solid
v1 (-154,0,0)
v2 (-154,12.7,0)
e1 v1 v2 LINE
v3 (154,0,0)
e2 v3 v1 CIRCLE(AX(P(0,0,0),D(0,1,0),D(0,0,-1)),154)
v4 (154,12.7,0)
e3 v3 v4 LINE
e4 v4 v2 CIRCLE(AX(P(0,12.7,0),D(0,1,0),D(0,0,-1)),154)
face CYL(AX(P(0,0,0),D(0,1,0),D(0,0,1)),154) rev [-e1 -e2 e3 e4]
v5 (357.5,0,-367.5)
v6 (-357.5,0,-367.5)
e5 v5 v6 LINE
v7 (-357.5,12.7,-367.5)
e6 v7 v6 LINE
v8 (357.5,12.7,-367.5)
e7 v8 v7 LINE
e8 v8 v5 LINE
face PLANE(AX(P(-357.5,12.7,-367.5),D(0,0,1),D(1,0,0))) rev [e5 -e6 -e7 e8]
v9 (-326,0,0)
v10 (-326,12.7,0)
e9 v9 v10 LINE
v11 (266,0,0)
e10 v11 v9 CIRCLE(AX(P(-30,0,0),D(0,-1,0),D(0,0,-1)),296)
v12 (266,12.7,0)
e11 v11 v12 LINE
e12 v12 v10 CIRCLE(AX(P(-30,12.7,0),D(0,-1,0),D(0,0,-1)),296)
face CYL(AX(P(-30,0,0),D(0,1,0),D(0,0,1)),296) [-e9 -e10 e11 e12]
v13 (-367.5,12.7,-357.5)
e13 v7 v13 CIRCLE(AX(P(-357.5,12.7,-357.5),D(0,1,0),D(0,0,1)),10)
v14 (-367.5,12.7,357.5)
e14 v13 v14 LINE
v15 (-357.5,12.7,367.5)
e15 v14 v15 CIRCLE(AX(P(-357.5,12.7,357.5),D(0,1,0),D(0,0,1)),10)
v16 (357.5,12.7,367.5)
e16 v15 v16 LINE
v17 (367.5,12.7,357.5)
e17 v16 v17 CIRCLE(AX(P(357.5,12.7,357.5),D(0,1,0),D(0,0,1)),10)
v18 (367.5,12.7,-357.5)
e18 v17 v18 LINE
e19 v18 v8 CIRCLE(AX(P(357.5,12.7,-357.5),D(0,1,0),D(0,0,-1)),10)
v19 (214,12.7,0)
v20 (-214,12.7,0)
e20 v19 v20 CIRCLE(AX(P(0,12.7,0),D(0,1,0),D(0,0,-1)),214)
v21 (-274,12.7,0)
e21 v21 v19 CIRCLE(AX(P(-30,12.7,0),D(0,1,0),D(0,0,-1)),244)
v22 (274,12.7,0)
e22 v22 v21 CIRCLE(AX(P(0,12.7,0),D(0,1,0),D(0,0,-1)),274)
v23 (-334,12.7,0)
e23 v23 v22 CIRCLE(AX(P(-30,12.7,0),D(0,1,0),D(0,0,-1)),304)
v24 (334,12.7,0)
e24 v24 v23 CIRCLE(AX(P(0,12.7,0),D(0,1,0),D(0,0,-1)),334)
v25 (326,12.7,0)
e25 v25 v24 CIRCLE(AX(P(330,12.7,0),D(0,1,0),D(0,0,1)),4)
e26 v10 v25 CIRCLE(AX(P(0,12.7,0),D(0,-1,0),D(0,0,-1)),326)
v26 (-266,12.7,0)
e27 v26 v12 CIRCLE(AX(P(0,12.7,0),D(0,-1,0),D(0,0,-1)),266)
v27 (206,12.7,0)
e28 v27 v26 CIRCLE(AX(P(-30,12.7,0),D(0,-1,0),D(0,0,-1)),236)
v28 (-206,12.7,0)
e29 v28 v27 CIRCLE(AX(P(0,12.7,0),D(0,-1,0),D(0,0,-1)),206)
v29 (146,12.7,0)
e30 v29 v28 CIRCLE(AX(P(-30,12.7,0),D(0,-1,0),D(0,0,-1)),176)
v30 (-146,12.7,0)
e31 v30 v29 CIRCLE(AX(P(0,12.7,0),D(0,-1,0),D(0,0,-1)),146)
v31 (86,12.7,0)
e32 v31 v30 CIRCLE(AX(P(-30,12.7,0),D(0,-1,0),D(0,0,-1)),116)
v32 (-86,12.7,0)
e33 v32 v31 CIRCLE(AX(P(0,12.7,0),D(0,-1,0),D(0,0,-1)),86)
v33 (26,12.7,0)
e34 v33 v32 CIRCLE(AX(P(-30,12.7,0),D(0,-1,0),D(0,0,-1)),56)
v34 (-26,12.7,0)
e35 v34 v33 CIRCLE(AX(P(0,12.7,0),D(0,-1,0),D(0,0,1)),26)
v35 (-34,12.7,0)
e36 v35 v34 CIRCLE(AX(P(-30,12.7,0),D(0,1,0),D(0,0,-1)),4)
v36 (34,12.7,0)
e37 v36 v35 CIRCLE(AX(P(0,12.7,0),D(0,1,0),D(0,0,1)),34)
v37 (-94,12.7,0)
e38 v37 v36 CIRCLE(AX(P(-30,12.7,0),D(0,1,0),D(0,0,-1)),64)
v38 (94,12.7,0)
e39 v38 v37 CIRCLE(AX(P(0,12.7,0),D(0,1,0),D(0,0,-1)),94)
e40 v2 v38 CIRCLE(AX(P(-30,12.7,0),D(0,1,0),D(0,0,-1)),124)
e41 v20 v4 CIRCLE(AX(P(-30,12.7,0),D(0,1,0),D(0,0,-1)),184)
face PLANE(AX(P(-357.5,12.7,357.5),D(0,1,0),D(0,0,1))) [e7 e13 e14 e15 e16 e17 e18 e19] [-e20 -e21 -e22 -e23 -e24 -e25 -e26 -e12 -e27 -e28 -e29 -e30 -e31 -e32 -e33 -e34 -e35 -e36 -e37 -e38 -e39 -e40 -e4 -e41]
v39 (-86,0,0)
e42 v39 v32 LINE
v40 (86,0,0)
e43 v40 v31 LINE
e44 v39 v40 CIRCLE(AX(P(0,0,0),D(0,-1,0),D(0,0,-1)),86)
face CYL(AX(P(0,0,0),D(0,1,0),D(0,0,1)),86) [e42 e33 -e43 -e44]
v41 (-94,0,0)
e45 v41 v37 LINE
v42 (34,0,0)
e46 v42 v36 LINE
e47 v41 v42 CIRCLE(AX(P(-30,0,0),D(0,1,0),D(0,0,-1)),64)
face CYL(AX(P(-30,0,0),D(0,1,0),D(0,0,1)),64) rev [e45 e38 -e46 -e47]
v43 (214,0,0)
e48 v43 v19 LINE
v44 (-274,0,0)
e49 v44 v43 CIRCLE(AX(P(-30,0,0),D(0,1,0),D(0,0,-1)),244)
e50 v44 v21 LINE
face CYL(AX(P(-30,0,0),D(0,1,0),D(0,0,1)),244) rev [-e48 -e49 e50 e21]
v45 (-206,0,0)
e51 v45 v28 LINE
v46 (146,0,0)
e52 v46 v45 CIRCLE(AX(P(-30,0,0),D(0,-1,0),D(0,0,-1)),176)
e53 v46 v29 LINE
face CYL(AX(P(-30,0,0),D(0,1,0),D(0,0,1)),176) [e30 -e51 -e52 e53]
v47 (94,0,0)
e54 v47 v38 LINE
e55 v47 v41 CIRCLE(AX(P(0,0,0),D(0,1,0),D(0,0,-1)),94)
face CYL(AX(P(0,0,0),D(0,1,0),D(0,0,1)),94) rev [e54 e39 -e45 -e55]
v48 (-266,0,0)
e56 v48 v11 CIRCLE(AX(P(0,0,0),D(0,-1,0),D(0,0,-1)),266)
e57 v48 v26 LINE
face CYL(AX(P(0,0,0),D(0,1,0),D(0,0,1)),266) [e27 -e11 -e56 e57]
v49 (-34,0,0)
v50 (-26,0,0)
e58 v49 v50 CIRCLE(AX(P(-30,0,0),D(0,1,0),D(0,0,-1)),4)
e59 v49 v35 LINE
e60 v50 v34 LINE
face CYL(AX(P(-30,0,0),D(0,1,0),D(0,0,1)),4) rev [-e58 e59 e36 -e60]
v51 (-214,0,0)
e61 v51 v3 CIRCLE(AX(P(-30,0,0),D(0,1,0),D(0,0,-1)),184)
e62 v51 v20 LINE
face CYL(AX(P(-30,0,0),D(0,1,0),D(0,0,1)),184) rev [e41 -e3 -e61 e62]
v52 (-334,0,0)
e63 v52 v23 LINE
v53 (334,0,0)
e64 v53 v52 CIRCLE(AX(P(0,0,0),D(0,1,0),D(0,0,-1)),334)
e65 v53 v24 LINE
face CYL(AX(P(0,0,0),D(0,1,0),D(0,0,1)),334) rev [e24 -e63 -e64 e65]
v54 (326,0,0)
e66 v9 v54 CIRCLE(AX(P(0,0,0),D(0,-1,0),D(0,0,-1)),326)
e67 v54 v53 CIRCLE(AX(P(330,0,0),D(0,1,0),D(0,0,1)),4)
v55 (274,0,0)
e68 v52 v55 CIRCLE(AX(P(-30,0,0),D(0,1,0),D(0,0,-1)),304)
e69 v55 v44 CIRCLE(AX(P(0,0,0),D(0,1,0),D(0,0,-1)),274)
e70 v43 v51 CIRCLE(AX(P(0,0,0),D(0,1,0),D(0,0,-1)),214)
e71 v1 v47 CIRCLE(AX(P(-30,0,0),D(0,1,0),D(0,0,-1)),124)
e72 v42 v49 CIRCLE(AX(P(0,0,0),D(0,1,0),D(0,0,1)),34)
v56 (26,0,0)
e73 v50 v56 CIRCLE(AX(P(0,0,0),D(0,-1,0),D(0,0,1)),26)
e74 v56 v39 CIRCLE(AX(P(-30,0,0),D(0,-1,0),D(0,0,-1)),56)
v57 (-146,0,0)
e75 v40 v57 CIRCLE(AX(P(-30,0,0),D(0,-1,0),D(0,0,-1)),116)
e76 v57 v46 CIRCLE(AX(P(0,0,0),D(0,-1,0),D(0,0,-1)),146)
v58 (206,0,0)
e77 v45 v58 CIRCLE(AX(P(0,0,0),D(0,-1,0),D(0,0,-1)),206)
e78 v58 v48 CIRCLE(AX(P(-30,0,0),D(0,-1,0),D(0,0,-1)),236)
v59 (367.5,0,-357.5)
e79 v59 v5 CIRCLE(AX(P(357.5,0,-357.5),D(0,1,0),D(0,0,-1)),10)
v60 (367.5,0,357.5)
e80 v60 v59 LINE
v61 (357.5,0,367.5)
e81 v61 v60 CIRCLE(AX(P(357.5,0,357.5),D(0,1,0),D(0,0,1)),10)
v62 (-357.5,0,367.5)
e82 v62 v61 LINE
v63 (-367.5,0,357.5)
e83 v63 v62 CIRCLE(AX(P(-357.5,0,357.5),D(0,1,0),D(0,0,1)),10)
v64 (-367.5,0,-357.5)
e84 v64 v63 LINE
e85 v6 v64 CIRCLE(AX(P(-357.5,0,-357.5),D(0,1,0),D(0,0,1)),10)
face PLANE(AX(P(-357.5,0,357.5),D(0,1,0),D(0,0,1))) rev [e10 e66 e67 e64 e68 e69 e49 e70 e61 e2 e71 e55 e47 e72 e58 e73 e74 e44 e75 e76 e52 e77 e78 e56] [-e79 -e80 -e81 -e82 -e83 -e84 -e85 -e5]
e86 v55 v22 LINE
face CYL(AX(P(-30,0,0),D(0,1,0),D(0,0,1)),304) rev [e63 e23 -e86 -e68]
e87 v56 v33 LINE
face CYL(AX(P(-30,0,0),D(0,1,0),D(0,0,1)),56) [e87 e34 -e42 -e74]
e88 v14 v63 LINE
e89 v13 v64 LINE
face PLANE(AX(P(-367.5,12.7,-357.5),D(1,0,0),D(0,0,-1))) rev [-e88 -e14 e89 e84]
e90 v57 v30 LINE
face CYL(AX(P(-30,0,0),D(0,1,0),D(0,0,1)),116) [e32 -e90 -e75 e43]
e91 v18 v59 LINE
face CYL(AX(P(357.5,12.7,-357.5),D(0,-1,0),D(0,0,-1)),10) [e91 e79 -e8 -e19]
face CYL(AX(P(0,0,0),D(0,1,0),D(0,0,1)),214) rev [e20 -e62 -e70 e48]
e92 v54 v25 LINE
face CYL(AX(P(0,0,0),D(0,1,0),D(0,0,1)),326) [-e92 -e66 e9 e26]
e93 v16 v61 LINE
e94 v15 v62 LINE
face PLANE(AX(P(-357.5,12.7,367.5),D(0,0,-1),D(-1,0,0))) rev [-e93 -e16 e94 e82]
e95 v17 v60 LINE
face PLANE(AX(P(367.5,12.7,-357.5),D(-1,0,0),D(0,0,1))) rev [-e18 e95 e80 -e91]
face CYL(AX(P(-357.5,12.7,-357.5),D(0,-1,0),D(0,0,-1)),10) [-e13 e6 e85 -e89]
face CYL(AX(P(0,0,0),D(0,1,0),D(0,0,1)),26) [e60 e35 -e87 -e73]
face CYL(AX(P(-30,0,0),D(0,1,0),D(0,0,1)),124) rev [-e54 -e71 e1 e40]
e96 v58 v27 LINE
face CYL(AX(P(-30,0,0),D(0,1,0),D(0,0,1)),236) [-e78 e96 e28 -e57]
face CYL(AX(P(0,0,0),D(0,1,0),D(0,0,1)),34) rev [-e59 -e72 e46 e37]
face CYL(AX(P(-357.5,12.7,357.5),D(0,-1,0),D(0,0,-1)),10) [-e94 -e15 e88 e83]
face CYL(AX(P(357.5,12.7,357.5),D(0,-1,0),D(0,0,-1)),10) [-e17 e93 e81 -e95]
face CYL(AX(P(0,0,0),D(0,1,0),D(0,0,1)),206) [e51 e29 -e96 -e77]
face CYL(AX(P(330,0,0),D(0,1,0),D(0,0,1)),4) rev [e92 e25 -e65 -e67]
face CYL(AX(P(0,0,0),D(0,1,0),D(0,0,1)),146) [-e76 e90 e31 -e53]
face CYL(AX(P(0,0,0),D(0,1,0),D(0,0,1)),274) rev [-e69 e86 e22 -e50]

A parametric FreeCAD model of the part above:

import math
import FreeCAD as App
import Part
import Sketcher
from FreeCAD import Vector
Q = App.Units.Quantity

doc = App.newDocument("Part")
body = doc.addObject("PartDesign::Body", "Body")

# Sketch on XZ plane
sketch1 = body.newObject("Sketcher::SketchObject", "Sketch")
sketch1.AttachmentSupport = (doc.getObject("XZ_Plane"), [""])
sketch1.MapMode = "FlatFace"
sketch1.addGeometry([
    Part.LineSegment(Vector(357.5, -367.5, 0), Vector(-357.5, -367.5, 0)),  # 0
    Part.ArcOfCircle(Part.Circle(Vector(-357.5, -357.5, 0), Vector(0, 0, 1), 10), math.radians(180), math.radians(270)),  # 1
    Part.LineSegment(Vector(-367.5, -357.5, 0), Vector(-367.5, 357.5, 0)),  # 2
    Part.ArcOfCircle(Part.Circle(Vector(-357.5, 357.5, 0), Vector(0, 0, 1), 10), math.radians(90), math.radians(180)),  # 3
    Part.LineSegment(Vector(-357.5, 367.5, 0), Vector(357.5, 367.5, 0)),  # 4
    Part.ArcOfCircle(Part.Circle(Vector(357.5, 357.5, 0), Vector(0, 0, 1), 10), math.radians(0), math.radians(90)),  # 5
    Part.LineSegment(Vector(367.5, 357.5, 0), Vector(367.5, -357.5, 0)),  # 6
    Part.ArcOfCircle(Part.Circle(Vector(357.5, -357.5, 0), Vector(0, 0, 1), 10), math.radians(-90), math.radians(0)),  # 7
], False)
sketch1.addConstraint([
    Sketcher.Constraint("Tangent", 0, 2, 1, 2),
    Sketcher.Constraint("Tangent", 1, 1, 2, 1),
    Sketcher.Constraint("Tangent", 2, 2, 3, 2),
    Sketcher.Constraint("Tangent", 3, 1, 4, 1),
    Sketcher.Constraint("Tangent", 4, 2, 5, 2),
    Sketcher.Constraint("Tangent", 5, 1, 6, 1),
    Sketcher.Constraint("Tangent", 6, 2, 7, 2),
    Sketcher.Constraint("Tangent", 7, 1, 0, 1),
    Sketcher.Constraint("Horizontal", 0),
    Sketcher.Constraint("Vertical", 2),
    Sketcher.Constraint("Horizontal", 4),
    Sketcher.Constraint("Vertical", 6),
    Sketcher.Constraint("Equal", 1, 3),
    Sketcher.Constraint("Equal", 3, 5),
    Sketcher.Constraint("Equal", 5, 7),
    Sketcher.Constraint("Symmetric", 1, 3, 5, 3, -1, 1),
    Sketcher.Constraint("Equal", 4, 2),
    Sketcher.Constraint("Radius", 1, Q("10 mm")),
    Sketcher.Constraint("DistanceX", 0, 2, 0, 1, Q("715 mm")),
])
pad1 = body.newObject("PartDesign::Pad", "Pad")
pad1.Profile = sketch1
pad1.Length = 12.7
pad1.Reversed = True

# Sketch on XZ plane
sketch2 = body.newObject("Sketcher::SketchObject", "Sketch001")
sketch2.AttachmentSupport = (doc.getObject("XZ_Plane"), [""])
sketch2.MapMode = "FlatFace"
sketch2.AttachmentOffset = App.Placement(Vector(0, 0, -12.7), App.Rotation())
sketch2.addGeometry([
    Part.ArcOfCircle(Part.Circle(Vector(0, 0, 0), Vector(0, 0, 1), 26), math.radians(180), math.radians(360)),  # 0
    Part.ArcOfCircle(Part.Circle(Vector(-30, 0, 0), Vector(0, 0, 1), 56), math.radians(0), math.radians(180)),  # 1
    Part.ArcOfCircle(Part.Circle(Vector(0, 0, 0), Vector(0, 0, 1), 86), math.radians(180), math.radians(360)),  # 2
    Part.ArcOfCircle(Part.Circle(Vector(-30, 0, 0), Vector(0, 0, 1), 116), math.radians(0), math.radians(180)),  # 3
    Part.ArcOfCircle(Part.Circle(Vector(0, 0, 0), Vector(0, 0, 1), 146), math.radians(180), math.radians(360)),  # 4
    Part.ArcOfCircle(Part.Circle(Vector(-30, 0, 0), Vector(0, 0, 1), 176), math.radians(0), math.radians(180)),  # 5
    Part.ArcOfCircle(Part.Circle(Vector(0, 0, 0), Vector(0, 0, 1), 206), math.radians(180), math.radians(360)),  # 6
    Part.ArcOfCircle(Part.Circle(Vector(-30, 0, 0), Vector(0, 0, 1), 236), math.radians(0), math.radians(180)),  # 7
    Part.ArcOfCircle(Part.Circle(Vector(0, 0, 0), Vector(0, 0, 1), 266), math.radians(180), math.radians(360)),  # 8
    Part.ArcOfCircle(Part.Circle(Vector(-30, 0, 0), Vector(0, 0, 1), 296), math.radians(0), math.radians(180)),  # 9
    Part.ArcOfCircle(Part.Circle(Vector(0, 0, 0), Vector(0, 0, 1), 326), math.radians(180), math.radians(360)),  # 10
    Part.ArcOfCircle(Part.Circle(Vector(330, 0, 0), Vector(0, 0, 1), 4), math.radians(0), math.radians(180)),  # 11
    Part.ArcOfCircle(Part.Circle(Vector(0, 0, 0), Vector(0, 0, 1), 334), math.radians(180), math.radians(360)),  # 12
    Part.ArcOfCircle(Part.Circle(Vector(-30, 0, 0), Vector(0, 0, 1), 304), math.radians(0), math.radians(180)),  # 13
    Part.ArcOfCircle(Part.Circle(Vector(0, 0, 0), Vector(0, 0, 1), 274), math.radians(180), math.radians(360)),  # 14
    Part.ArcOfCircle(Part.Circle(Vector(-30, 0, 0), Vector(0, 0, 1), 244), math.radians(0), math.radians(180)),  # 15
    Part.ArcOfCircle(Part.Circle(Vector(0, 0, 0), Vector(0, 0, 1), 214), math.radians(180), math.radians(360)),  # 16
    Part.ArcOfCircle(Part.Circle(Vector(-30, 0, 0), Vector(0, 0, 1), 184), math.radians(0), math.radians(180)),  # 17
    Part.ArcOfCircle(Part.Circle(Vector(0, 0, 0), Vector(0, 0, 1), 154), math.radians(180), math.radians(360)),  # 18
    Part.ArcOfCircle(Part.Circle(Vector(-30, 0, 0), Vector(0, 0, 1), 124), math.radians(0), math.radians(180)),  # 19
    Part.ArcOfCircle(Part.Circle(Vector(0, 0, 0), Vector(0, 0, 1), 94), math.radians(180), math.radians(360)),  # 20
    Part.ArcOfCircle(Part.Circle(Vector(-30, 0, 0), Vector(0, 0, 1), 64), math.radians(0), math.radians(180)),  # 21
    Part.ArcOfCircle(Part.Circle(Vector(0, 0, 0), Vector(0, 0, 1), 34), math.radians(180), math.radians(360)),  # 22
    Part.ArcOfCircle(Part.Circle(Vector(-30, 0, 0), Vector(0, 0, 1), 4), math.radians(0), math.radians(180)),  # 23
], False)
sketch2.addConstraint([
    Sketcher.Constraint("Tangent", 0, 2, 1, 1),
    Sketcher.Constraint("Tangent", 1, 2, 2, 1),
    Sketcher.Constraint("Tangent", 2, 2, 3, 1),
    Sketcher.Constraint("Tangent", 3, 2, 4, 1),
    Sketcher.Constraint("Tangent", 4, 2, 5, 1),
    Sketcher.Constraint("Tangent", 5, 2, 6, 1),
    Sketcher.Constraint("Tangent", 6, 2, 7, 1),
    Sketcher.Constraint("Tangent", 7, 2, 8, 1),
    Sketcher.Constraint("Tangent", 8, 2, 9, 1),
    Sketcher.Constraint("Tangent", 9, 2, 10, 1),
    Sketcher.Constraint("Tangent", 10, 2, 11, 2),
    Sketcher.Constraint("Tangent", 11, 1, 12, 2),
    Sketcher.Constraint("Tangent", 12, 1, 13, 2),
    Sketcher.Constraint("Tangent", 13, 1, 14, 2),
    Sketcher.Constraint("Tangent", 14, 1, 15, 2),
    Sketcher.Constraint("Tangent", 15, 1, 16, 2),
    Sketcher.Constraint("Tangent", 16, 1, 17, 2),
    Sketcher.Constraint("Tangent", 17, 1, 18, 2),
    Sketcher.Constraint("Tangent", 18, 1, 19, 2),
    Sketcher.Constraint("Tangent", 19, 1, 20, 2),
    Sketcher.Constraint("Tangent", 20, 1, 21, 2),
    Sketcher.Constraint("Tangent", 21, 1, 22, 2),
    Sketcher.Constraint("Tangent", 22, 1, 23, 2),
    Sketcher.Constraint("Tangent", 23, 1, 0, 1),
    Sketcher.Constraint("Coincident", 0, 3, -1, 1),
    Sketcher.Constraint("Coincident", 2, 3, -1, 1),
    Sketcher.Constraint("Coincident", 4, 3, -1, 1),
    Sketcher.Constraint("Coincident", 6, 3, -1, 1),
    Sketcher.Constraint("Coincident", 8, 3, -1, 1),
    Sketcher.Constraint("Coincident", 10, 3, -1, 1),
    Sketcher.Constraint("Coincident", 12, 3, -1, 1),
    Sketcher.Constraint("Coincident", 14, 3, -1, 1),
    Sketcher.Constraint("Coincident", 16, 3, -1, 1),
    Sketcher.Constraint("Coincident", 18, 3, -1, 1),
    Sketcher.Constraint("Coincident", 20, 3, -1, 1),
    Sketcher.Constraint("Coincident", 22, 3, -1, 1),
    Sketcher.Constraint("Coincident", 3, 3, 1, 3),
    Sketcher.Constraint("Coincident", 5, 3, 1, 3),
    Sketcher.Constraint("Coincident", 7, 3, 1, 3),
    Sketcher.Constraint("Coincident", 9, 3, 1, 3),
    Sketcher.Constraint("Coincident", 13, 3, 1, 3),
    Sketcher.Constraint("Coincident", 15, 3, 1, 3),
    Sketcher.Constraint("Coincident", 17, 3, 1, 3),
    Sketcher.Constraint("Coincident", 19, 3, 1, 3),
    Sketcher.Constraint("Coincident", 21, 3, 1, 3),
    Sketcher.Constraint("Coincident", 23, 3, 1, 3),
    Sketcher.Constraint("PointOnObject", 1, 3, -1),
    Sketcher.Constraint("PointOnObject", 11, 3, -1),
    Sketcher.Constraint("Radius", 0, Q("26 mm")),
    Sketcher.Constraint("Radius", 1, Q("56 mm")),
])
pocket1 = body.newObject("PartDesign::Pocket", "Pocket")
pocket1.Profile = sketch2
pocket1.Type = "ThroughAll"
pocket1.Reversed = True

doc.recompute()
